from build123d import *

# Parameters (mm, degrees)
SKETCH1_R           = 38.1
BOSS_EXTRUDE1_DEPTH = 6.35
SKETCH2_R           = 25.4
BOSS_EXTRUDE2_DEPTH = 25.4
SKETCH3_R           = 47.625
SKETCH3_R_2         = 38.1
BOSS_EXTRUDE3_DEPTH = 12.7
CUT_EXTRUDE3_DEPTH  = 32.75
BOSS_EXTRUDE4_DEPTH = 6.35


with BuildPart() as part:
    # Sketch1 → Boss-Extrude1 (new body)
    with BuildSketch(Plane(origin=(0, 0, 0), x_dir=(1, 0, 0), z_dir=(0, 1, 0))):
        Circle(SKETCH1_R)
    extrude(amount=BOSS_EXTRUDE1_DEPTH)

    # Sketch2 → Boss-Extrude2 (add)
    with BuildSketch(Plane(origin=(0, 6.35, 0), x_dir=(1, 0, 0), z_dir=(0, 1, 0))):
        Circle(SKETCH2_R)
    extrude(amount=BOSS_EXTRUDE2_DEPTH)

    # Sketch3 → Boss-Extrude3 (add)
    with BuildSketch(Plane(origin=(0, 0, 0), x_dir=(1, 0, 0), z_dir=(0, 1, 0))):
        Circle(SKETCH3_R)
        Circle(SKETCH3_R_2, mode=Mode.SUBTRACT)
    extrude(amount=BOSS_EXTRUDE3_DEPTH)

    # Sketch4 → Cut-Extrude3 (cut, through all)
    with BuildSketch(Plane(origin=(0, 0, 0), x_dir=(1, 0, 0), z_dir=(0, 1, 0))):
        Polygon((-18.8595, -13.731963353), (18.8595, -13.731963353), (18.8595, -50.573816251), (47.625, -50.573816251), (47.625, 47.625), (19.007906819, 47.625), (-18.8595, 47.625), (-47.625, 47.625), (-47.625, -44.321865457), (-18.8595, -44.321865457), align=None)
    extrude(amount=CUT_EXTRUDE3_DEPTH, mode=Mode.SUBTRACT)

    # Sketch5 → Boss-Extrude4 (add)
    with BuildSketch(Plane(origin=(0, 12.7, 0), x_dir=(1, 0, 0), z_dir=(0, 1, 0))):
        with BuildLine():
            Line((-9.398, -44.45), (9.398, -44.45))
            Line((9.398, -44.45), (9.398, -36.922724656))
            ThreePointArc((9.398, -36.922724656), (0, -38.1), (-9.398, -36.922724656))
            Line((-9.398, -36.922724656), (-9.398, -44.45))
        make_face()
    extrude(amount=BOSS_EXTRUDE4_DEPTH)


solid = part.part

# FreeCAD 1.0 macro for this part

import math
import FreeCAD as App
import Part
import Sketcher
from FreeCAD import Vector
Q = App.Units.Quantity


def add_polygon(sketch, points):
    """Adds a closed chain of lines whose ends are joined by coincident constraints."""
    first, n = sketch.GeometryCount, len(points)
    for a, b in zip(points, points[1:] + points[:1]):
        sketch.addGeometry(Part.LineSegment(App.Vector(*a, 0), App.Vector(*b, 0)), False)
    for i in range(n):
        sketch.addConstraint(Sketcher.Constraint("Coincident", first + i, 2, first + (i + 1) % n, 1))

doc = App.newDocument("Part")
params = doc.addObject("Spreadsheet::Sheet", "Params")
for row, (alias, value) in enumerate([
    ("sketch1_diameter", "3 in"),
    ("pad1_length", "0.25 in"),
    ("sketch2_diameter", "2 in"),
    ("pad2_length", "1 in"),
    ("sketch3_diameter", "3 in"),
    ("sketch3_diameter2", "3.75 in"),
    ("pad3_length", "0.5 in"),
    ("sketch4_width", "3.75 in"),
    ("sketch4_width2", "1.485 in"),
    ("sketch5_radius", "1.5 in"),
    ("sketch5_width", "0.74 in"),
    ("pad4_length", "0.25 in"),
], start=1):
    params.set(f"A{row}", alias)
    params.set(f"B{row}", "=" + value)
    params.setAlias(f"B{row}", alias)

body = doc.addObject("PartDesign::Body", "Body")

# Sketch on XZ plane
sketch1 = body.newObject("Sketcher::SketchObject", "Sketch")
sketch1.AttachmentSupport = (doc.getObject("XZ_Plane"), [""])
sketch1.MapMode = "FlatFace"
sketch1.addGeometry(Part.Circle(Vector(0, 0, 0), Vector(0, 0, 1), 38.1), False)
sketch1.addConstraint([
    Sketcher.Constraint("Coincident", 0, 3, -1, 1),
    Sketcher.Constraint("Diameter", 0, Q("3 in")),
])
sketch1.setExpression("Constraints[1]", "Params.sketch1_diameter")
pad1 = body.newObject("PartDesign::Pad", "Pad")
pad1.Profile = sketch1
pad1.setExpression("Length", "Params.pad1_length")
pad1.Reversed = True

# Sketch on XZ plane
sketch2 = body.newObject("Sketcher::SketchObject", "Sketch001")
sketch2.AttachmentSupport = (doc.getObject("XZ_Plane"), [""])
sketch2.MapMode = "FlatFace"
sketch2.AttachmentOffset = App.Placement(Vector(0, 0, -0.25 * 25.4), App.Rotation())
sketch2.addGeometry(Part.Circle(Vector(0, 0, 0), Vector(0, 0, 1), 25.4), False)
sketch2.addConstraint([
    Sketcher.Constraint("Coincident", 0, 3, -1, 1),
    Sketcher.Constraint("Diameter", 0, Q("2 in")),
])
sketch2.setExpression("Constraints[1]", "Params.sketch2_diameter")
pad2 = body.newObject("PartDesign::Pad", "Pad001")
pad2.Profile = sketch2
pad2.setExpression("Length", "Params.pad2_length")
pad2.Reversed = True

# Sketch on XZ plane
sketch3 = body.newObject("Sketcher::SketchObject", "Sketch002")
sketch3.AttachmentSupport = (doc.getObject("XZ_Plane"), [""])
sketch3.MapMode = "FlatFace"
sketch3.addGeometry([
    Part.Circle(Vector(0, 0, 0), Vector(0, 0, 1), 47.625),
    Part.Circle(Vector(0, 0, 0), Vector(0, 0, 1), 38.1),
], False)
sketch3.addConstraint([
    Sketcher.Constraint("Coincident", 0, 3, -1, 1),
    Sketcher.Constraint("Coincident", 1, 3, -1, 1),
    Sketcher.Constraint("Diameter", 1, Q("3 in")),
    Sketcher.Constraint("Diameter", 0, Q("3.75 in")),
])
sketch3.setExpression("Constraints[2]", "Params.sketch3_diameter")
sketch3.setExpression("Constraints[3]", "Params.sketch3_diameter2")
pad3 = body.newObject("PartDesign::Pad", "Pad002")
pad3.Profile = sketch3
pad3.setExpression("Length", "Params.pad3_length")
pad3.Reversed = True

# Sketch on XZ plane
sketch4 = body.newObject("Sketcher::SketchObject", "Sketch003")
sketch4.AttachmentSupport = (doc.getObject("XZ_Plane"), [""])
sketch4.MapMode = "FlatFace"
add_polygon(sketch4, [(-18.8595, 13.731963), (18.8595, 13.731963), (18.8595, 50.573816), (47.625, 50.573816), (47.625, -47.625), (-47.625, -47.625), (-47.625, 44.321865), (-18.8595, 44.321865)])  # lines 0-7
sketch4.addConstraint([
    Sketcher.Constraint("Horizontal", 0),
    Sketcher.Constraint("Vertical", 1),
    Sketcher.Constraint("Horizontal", 2),
    Sketcher.Constraint("Vertical", 3),
    Sketcher.Constraint("Horizontal", 4),
    Sketcher.Constraint("Vertical", 5),
    Sketcher.Constraint("Horizontal", 6),
    Sketcher.Constraint("Vertical", 7),
    Sketcher.Constraint("Equal", 2, 6),
    Sketcher.Constraint("DistanceX", 4, 2, 4, 1, Q("3.75 in")),
    Sketcher.Constraint("DistanceX", 0, 1, 0, 2, Q("1.485 in")),
    Sketcher.Constraint("DistanceX", -1, 1, 2, 2, Q("1.875 in")),
    Sketcher.Constraint("DistanceY", 3, 2, -1, 1, Q("1.875 in")),
    Sketcher.Constraint("DistanceY", 1, 1, 1, 2, Q("36.841853 mm")),
    Sketcher.Constraint("DistanceY", 3, 2, 3, 1, Q("98.198816 mm")),
    Sketcher.Constraint("DistanceY", 5, 1, 5, 2, Q("91.946865 mm")),
])
sketch4.setExpression("Constraints[17]", "Params.sketch4_width")
sketch4.setExpression("Constraints[18]", "Params.sketch4_width2")
pocket1 = body.newObject("PartDesign::Pocket", "Pocket")
pocket1.Profile = sketch4
pocket1.Type = "ThroughAll"

# Sketch on XZ plane
sketch5 = body.newObject("Sketcher::SketchObject", "Sketch004")
sketch5.AttachmentSupport = (doc.getObject("XZ_Plane"), [""])
sketch5.MapMode = "FlatFace"
sketch5.AttachmentOffset = App.Placement(Vector(0, 0, -0.5 * 25.4), App.Rotation())
sketch5.addGeometry([
    Part.LineSegment(Vector(-9.398, 44.45, 0), Vector(9.398, 44.45, 0)),
    Part.LineSegment(Vector(9.398, 44.45, 0), Vector(9.398, 36.922725, 0)),
    Part.ArcOfCircle(Part.Circle(Vector(0, 0, 0), Vector(0, 0, 1), 38.1), math.radians(75.71965), math.radians(104.28035)),
    Part.LineSegment(Vector(-9.398, 36.922725, 0), Vector(-9.398, 44.45, 0)),
], False)
sketch5.addConstraint([
    Sketcher.Constraint("Coincident", 0, 2, 1, 1),
    Sketcher.Constraint("Coincident", 1, 2, 2, 1),
    Sketcher.Constraint("Coincident", 2, 2, 3, 1),
    Sketcher.Constraint("Coincident", 3, 2, 0, 1),
    Sketcher.Constraint("Horizontal", 0),
    Sketcher.Constraint("Vertical", 1),
    Sketcher.Constraint("Vertical", 3),
    Sketcher.Constraint("Coincident", 2, 3, -1, 1),
    Sketcher.Constraint("Horizontal", 1, 2, 2, 2),
    Sketcher.Constraint("Radius", 2, Q("1.5 in")),
    Sketcher.Constraint("DistanceX", 0, 1, 0, 2, Q("0.74 in")),
    Sketcher.Constraint("DistanceY", -1, 1, 0, 2, Q("1.75 in")),
])
sketch5.setExpression("Constraints[9]", "Params.sketch5_radius")
sketch5.setExpression("Constraints[10]", "Params.sketch5_width")
pad4 = body.newObject("PartDesign::Pad", "Pad003")
pad4.Profile = sketch5
pad4.setExpression("Length", "Params.pad4_length")
pad4.Reversed = True

doc.recompute()
